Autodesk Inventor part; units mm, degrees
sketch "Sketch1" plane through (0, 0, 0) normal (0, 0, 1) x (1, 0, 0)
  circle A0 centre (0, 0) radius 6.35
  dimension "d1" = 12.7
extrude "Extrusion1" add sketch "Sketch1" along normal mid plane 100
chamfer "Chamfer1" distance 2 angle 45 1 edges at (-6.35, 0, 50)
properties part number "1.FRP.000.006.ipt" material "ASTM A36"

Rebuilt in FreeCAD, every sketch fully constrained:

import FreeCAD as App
import Part
import Sketcher
Q = App.Units.Quantity


def edges_at(feature, points):
    """Names of the edges that pass closest to the given points."""
    edges = feature.Shape.Edges
    near = lambda p: min(range(len(edges)), key=lambda i: edges[i].distToShape(Part.Vertex(*p))[0])
    return sorted({f"Edge{near(p) + 1}" for p in points})

doc = App.newDocument("Part")
body = doc.addObject("PartDesign::Body", "Body")

# Sketch on XY plane
sketch1 = doc.addObject("Sketcher::SketchObject", "Sketch")
body.addObject(sketch1)
sketch1.AttachmentSupport = (doc.XY_Plane, [""])
sketch1.MapMode = "FlatFace"
sketch1.addGeometry(Part.Circle(App.Vector(0, 0, 0), App.Vector(0, 0, 1), 6), False)
sketch1.addConstraint([
    Sketcher.Constraint("Coincident", 0, 3, -1, 1),
    Sketcher.Constraint("Diameter", 0, Q("12.7 mm")),
])
pad1 = doc.addObject("PartDesign::Pad", "Pad")
body.addObject(pad1)
pad1.Profile = sketch1
pad1.Length = 100
pad1.Midplane = True
doc.recompute()

chamfer = doc.addObject("PartDesign::Chamfer", "Chamfer")
body.addObject(chamfer)
chamfer.Base = (pad1, edges_at(pad1, [(-6.35, 0, 50)]))
chamfer.Size = 2

doc.recompute()
